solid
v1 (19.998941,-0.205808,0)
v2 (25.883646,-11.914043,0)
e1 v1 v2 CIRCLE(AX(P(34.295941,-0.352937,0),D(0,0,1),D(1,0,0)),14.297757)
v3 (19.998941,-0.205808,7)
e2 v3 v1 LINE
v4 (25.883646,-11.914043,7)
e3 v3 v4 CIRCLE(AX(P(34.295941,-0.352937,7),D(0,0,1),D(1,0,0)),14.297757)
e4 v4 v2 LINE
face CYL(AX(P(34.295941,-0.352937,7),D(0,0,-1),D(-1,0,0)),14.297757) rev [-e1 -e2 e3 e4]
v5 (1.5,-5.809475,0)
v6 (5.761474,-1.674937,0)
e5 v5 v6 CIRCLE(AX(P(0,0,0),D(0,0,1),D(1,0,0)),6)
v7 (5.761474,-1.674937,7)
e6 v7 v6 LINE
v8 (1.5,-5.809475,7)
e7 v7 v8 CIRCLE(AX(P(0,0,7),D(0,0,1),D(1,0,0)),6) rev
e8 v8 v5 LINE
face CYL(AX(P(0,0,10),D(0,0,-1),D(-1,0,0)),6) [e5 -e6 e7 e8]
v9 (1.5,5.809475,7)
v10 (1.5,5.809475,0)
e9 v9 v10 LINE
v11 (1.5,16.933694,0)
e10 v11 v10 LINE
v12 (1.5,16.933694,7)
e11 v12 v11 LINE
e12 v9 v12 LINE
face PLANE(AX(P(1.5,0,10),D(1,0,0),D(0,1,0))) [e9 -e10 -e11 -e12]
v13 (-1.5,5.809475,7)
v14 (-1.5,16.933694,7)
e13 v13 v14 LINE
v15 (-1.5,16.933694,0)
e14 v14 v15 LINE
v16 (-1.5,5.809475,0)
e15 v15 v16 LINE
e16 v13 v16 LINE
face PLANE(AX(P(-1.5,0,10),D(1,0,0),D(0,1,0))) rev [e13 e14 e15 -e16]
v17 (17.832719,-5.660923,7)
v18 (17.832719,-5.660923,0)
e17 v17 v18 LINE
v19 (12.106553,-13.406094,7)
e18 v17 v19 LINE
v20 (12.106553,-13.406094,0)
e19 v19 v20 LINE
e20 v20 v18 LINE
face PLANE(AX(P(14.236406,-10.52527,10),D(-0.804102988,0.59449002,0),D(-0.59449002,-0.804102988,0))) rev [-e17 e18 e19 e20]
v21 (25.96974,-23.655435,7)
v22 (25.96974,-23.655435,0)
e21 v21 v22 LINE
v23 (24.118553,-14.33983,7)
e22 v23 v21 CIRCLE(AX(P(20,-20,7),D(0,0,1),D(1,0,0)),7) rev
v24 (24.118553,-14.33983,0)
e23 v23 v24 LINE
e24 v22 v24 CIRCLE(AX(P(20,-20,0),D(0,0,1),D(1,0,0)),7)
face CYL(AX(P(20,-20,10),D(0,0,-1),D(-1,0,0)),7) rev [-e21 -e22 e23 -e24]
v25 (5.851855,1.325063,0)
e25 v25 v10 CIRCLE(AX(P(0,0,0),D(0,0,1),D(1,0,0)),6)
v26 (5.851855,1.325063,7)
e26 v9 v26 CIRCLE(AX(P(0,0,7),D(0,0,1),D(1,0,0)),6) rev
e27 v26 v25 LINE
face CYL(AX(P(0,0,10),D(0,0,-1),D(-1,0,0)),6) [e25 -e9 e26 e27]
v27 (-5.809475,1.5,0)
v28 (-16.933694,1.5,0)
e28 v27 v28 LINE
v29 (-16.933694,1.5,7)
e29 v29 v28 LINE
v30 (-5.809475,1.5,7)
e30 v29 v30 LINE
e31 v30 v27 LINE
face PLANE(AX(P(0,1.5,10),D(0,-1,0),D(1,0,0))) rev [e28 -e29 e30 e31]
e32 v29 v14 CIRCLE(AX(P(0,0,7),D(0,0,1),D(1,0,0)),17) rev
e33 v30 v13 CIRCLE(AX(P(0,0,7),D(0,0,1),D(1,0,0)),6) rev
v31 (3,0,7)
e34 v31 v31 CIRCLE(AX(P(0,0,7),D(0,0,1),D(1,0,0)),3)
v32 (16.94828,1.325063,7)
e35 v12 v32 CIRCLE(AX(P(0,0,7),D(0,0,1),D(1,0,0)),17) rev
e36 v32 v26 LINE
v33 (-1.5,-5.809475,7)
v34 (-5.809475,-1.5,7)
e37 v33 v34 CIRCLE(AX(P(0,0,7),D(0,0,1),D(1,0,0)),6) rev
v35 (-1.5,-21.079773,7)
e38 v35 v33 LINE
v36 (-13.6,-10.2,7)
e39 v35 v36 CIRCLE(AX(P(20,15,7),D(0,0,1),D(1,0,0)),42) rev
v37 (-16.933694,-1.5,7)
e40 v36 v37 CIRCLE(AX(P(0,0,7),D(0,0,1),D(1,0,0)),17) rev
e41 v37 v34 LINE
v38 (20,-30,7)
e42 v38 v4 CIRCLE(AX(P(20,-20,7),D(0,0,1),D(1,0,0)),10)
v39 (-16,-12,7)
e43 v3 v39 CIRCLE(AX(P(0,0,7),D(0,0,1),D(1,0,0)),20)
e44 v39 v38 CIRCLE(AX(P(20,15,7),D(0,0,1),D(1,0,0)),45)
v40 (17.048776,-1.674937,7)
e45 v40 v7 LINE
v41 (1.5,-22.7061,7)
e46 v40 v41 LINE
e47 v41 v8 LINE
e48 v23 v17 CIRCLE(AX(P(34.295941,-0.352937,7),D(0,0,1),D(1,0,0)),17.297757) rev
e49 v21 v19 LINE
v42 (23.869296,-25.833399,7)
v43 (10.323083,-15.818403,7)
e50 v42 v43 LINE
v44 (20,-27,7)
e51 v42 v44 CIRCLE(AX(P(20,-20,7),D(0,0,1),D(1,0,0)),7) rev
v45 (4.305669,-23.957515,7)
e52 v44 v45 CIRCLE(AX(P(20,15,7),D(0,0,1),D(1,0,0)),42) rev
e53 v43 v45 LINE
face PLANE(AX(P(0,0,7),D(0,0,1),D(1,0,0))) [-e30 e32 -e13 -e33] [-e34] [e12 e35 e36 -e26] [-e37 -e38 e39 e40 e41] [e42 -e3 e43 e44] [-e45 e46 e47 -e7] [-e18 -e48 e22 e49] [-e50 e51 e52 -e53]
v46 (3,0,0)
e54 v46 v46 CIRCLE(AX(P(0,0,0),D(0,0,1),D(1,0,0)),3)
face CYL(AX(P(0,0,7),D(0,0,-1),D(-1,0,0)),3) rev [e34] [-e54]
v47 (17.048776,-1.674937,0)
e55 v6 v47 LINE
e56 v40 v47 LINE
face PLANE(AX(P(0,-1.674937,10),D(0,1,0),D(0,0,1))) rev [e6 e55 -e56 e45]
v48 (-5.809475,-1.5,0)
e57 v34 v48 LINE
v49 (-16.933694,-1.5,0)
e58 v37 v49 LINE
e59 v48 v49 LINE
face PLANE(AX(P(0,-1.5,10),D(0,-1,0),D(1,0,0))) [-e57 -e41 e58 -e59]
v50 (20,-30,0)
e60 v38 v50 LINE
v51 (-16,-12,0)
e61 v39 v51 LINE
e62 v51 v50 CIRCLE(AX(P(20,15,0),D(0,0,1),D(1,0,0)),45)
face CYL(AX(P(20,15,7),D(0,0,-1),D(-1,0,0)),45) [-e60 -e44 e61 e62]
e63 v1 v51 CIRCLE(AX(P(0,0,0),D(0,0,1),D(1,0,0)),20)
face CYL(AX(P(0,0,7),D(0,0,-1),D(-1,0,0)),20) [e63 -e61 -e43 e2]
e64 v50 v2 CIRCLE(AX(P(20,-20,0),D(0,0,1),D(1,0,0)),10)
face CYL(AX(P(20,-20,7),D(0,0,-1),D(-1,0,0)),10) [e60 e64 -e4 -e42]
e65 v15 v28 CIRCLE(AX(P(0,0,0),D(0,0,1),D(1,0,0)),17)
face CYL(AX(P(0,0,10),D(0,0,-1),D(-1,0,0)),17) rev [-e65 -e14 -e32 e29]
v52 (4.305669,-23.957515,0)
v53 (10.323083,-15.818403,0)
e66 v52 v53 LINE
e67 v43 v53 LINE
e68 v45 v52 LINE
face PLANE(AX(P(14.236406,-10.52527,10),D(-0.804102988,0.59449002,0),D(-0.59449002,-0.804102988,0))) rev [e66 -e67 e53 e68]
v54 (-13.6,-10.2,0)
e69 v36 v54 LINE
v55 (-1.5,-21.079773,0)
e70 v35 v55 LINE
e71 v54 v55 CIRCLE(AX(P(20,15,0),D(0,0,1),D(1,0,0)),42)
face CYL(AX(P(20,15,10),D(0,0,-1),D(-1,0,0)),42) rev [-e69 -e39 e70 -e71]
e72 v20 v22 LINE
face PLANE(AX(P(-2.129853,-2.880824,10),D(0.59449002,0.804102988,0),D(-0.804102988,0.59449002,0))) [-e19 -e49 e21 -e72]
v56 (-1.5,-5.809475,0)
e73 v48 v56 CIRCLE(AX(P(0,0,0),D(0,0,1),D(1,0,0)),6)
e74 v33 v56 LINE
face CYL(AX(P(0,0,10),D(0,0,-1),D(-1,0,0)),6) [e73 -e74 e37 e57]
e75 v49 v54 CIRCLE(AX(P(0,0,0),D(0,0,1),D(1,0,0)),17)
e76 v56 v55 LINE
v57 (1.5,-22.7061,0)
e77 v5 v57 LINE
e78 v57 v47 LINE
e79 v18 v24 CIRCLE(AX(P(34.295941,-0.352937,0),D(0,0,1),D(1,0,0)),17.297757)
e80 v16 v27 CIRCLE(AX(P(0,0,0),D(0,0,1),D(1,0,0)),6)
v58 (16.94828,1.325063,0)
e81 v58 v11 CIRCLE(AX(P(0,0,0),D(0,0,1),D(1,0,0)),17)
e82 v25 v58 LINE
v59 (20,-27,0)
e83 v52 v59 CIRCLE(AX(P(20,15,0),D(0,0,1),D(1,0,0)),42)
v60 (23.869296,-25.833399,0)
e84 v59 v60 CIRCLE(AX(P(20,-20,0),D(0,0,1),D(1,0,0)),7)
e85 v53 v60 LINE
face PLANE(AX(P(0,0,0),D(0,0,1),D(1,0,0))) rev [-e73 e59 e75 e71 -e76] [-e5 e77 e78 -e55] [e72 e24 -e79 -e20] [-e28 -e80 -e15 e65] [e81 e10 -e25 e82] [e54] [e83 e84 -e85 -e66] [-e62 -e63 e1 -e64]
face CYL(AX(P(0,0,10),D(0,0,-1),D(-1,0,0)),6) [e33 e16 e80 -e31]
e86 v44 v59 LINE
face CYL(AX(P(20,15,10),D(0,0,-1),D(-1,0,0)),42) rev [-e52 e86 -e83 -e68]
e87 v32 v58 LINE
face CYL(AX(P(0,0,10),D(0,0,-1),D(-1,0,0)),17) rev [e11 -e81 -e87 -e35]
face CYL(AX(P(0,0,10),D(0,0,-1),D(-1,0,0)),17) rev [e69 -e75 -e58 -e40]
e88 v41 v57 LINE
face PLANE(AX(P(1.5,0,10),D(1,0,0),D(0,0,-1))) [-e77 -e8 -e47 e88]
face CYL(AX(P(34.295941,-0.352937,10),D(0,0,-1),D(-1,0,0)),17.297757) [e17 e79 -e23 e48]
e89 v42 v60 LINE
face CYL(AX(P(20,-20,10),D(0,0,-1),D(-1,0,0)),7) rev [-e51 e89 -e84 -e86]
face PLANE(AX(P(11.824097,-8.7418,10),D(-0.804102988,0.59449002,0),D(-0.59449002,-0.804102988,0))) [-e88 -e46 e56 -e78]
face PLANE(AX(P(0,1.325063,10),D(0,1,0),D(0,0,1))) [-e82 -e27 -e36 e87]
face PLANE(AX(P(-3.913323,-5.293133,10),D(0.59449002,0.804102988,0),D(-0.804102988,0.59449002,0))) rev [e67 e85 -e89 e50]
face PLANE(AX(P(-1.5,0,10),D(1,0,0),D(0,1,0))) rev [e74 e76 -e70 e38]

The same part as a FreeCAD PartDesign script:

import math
import FreeCAD as App
import Part
import Sketcher
Q = App.Units.Quantity

doc = App.newDocument("Part")
body = doc.addObject("PartDesign::Body", "Body")

# Sketch on XY plane
sketch1 = body.newObject("Sketcher::SketchObject", "Sketch")
sketch1.AttachmentSupport = (doc.getObject("XY_Plane"), [""])
sketch1.MapMode = "FlatFace"
sketch1.addGeometry([
    Part.ArcOfCircle(Part.Circle(App.Vector(0, 0, 0), App.Vector(0, 0, 1), 20), math.radians(-0.589606), math.radians(216.869898)),  # 0
    Part.ArcOfCircle(Part.Circle(App.Vector(20, 15, 0), App.Vector(0, 0, 1), 45), math.radians(-143.130102), math.radians(-90)),  # 1
    Part.ArcOfCircle(Part.Circle(App.Vector(20, -20, 0), App.Vector(0, 0, 1), 10), math.radians(-90), math.radians(53.958956)),  # 2
    Part.ArcOfCircle(Part.Circle(App.Vector(34.295941, -0.352937, 0), App.Vector(0, 0, 1), 14.297757), math.radians(179.410394), math.radians(233.958956)),  # 3
    Part.Circle(App.Vector(0, 0, 0), App.Vector(0, 0, 1), 3),  # 4
], False)
sketch1.addConstraint([
    Sketcher.Constraint("Tangent", 0, 2, 1, 1),
    Sketcher.Constraint("Tangent", 1, 2, 2, 1),
    Sketcher.Constraint("Tangent", 2, 2, 3, 2),
    Sketcher.Constraint("Tangent", 3, 1, 0, 1),
    Sketcher.Constraint("Coincident", 0, 3, -1, 1),
    Sketcher.Constraint("Coincident", 4, 3, -1, 1),
    Sketcher.Constraint("Vertical", 1, 3, 2, 3),
    Sketcher.Constraint("Diameter", 4, Q("6 mm")),
    Sketcher.Constraint("Radius", 0, Q("20 mm")),
    Sketcher.Constraint("Radius", 1, Q("45 mm")),
    Sketcher.Constraint("Radius", 2, Q("10 mm")),
    Sketcher.Constraint("DistanceX", -1, 1, 1, 3, Q("20 mm")),
    Sketcher.Constraint("Radius", 3, Q("14.297757 mm")),
])
pad1 = body.newObject("PartDesign::Pad", "Pad")
pad1.Profile = sketch1
pad1.Length = 7

# Sketch on XY plane
sketch2 = body.newObject("Sketcher::SketchObject", "Sketch001")
sketch2.AttachmentSupport = (doc.getObject("XY_Plane"), [""])
sketch2.MapMode = "FlatFace"
sketch2.addGeometry([
    Part.LineSegment(App.Vector(-1.5, -21.079773, 0), App.Vector(-1.5, -5.809475, 0)),  # 0
    Part.ArcOfCircle(Part.Circle(App.Vector(0, 0, 0), App.Vector(0, 0, 1), 6), math.radians(-165.522488), math.radians(-104.477512)),  # 1
    Part.LineSegment(App.Vector(-5.809475, -1.5, 0), App.Vector(-16.933694, -1.5, 0)),  # 2
    Part.ArcOfCircle(Part.Circle(App.Vector(0, 0, 0), App.Vector(0, 0, 1), 17), math.radians(-174.937907), math.radians(-143.130102)),  # 3
    Part.ArcOfCircle(Part.Circle(App.Vector(20, 15, 0), App.Vector(0, 0, 1), 42), math.radians(-143.130102), math.radians(-120.790788)),  # 4
    Part.ArcOfCircle(Part.Circle(App.Vector(0, 0, 0), App.Vector(0, 0, 1), 6), math.radians(104.477512), math.radians(165.522488)),  # 5
    Part.LineSegment(App.Vector(-1.5, 5.809475, 0), App.Vector(-1.5, 16.933694, 0)),  # 6
    Part.ArcOfCircle(Part.Circle(App.Vector(0, 0, 0), App.Vector(0, 0, 1), 17), math.radians(95.062093), math.radians(174.937907)),  # 7
    Part.LineSegment(App.Vector(-16.933694, 1.5, 0), App.Vector(-5.809475, 1.5, 0)),  # 8
    Part.ArcOfCircle(Part.Circle(App.Vector(0, 0, 0), App.Vector(0, 0, 1), 6), math.radians(12.758604), math.radians(75.522488)),  # 9
    Part.LineSegment(App.Vector(5.851855, 1.325063, 0), App.Vector(16.94828, 1.325063, 0)),  # 10
    Part.ArcOfCircle(Part.Circle(App.Vector(0, 0, 0), App.Vector(0, 0, 1), 17), math.radians(4.470449), math.radians(84.937907)),  # 11
    Part.LineSegment(App.Vector(1.5, 16.933694, 0), App.Vector(1.5, 5.809475, 0)),  # 12
    Part.LineSegment(App.Vector(17.048776, -1.674937, 0), App.Vector(5.761474, -1.674937, 0)),  # 13
    Part.ArcOfCircle(Part.Circle(App.Vector(0, 0, 0), App.Vector(0, 0, 1), 6), math.radians(-75.522488), math.radians(-16.209845)),  # 14
    Part.LineSegment(App.Vector(1.5, -5.809475, 0), App.Vector(1.5, -22.7061, 0)),  # 15
    Part.LineSegment(App.Vector(1.5, -22.7061, 0), App.Vector(17.048776, -1.674937, 0)),  # 16
    Part.ArcOfCircle(Part.Circle(App.Vector(34.295941, -0.352937, 0), App.Vector(0, 0, 1), 17.297757), math.radians(-162.129914), math.radians(-126.041044)),  # 17
    Part.LineSegment(App.Vector(17.832719, -5.660923, 0), App.Vector(12.106553, -13.406094, 0)),  # 18
    Part.LineSegment(App.Vector(12.106553, -13.406094, 0), App.Vector(25.96974, -23.655435, 0)),  # 19
    Part.ArcOfCircle(Part.Circle(App.Vector(20, -20, 0), App.Vector(0, 0, 1), 7), math.radians(-31.480279), math.radians(53.958956)),  # 20
    Part.LineSegment(App.Vector(10.323083, -15.818403, 0), App.Vector(4.305669, -23.957515, 0)),  # 21
    Part.ArcOfCircle(Part.Circle(App.Vector(20, 15, 0), App.Vector(0, 0, 1), 42), math.radians(-111.942416), math.radians(-90)),  # 22
    Part.ArcOfCircle(Part.Circle(App.Vector(20, -20, 0), App.Vector(0, 0, 1), 7), math.radians(-90), math.radians(-56.443667)),  # 23
    Part.LineSegment(App.Vector(23.869296, -25.833399, 0), App.Vector(10.323083, -15.818403, 0)),  # 24
], False)
sketch2.addConstraint([
    Sketcher.Constraint("Coincident", 0, 2, 1, 2),
    Sketcher.Constraint("Coincident", 1, 1, 2, 1),
    Sketcher.Constraint("Coincident", 2, 2, 3, 1),
    Sketcher.Constraint("Tangent", 3, 2, 4, 1),
    Sketcher.Constraint("Coincident", 4, 2, 0, 1),
    Sketcher.Constraint("Coincident", 5, 1, 6, 1),
    Sketcher.Constraint("Coincident", 6, 2, 7, 1),
    Sketcher.Constraint("Coincident", 7, 2, 8, 1),
    Sketcher.Constraint("Coincident", 8, 2, 5, 2),
    Sketcher.Constraint("Coincident", 9, 1, 10, 1),
    Sketcher.Constraint("Coincident", 10, 2, 11, 1),
    Sketcher.Constraint("Coincident", 11, 2, 12, 1),
    Sketcher.Constraint("Coincident", 12, 2, 9, 2),
    Sketcher.Constraint("Coincident", 13, 2, 14, 2),
    Sketcher.Constraint("Coincident", 14, 1, 15, 1),
    Sketcher.Constraint("Coincident", 15, 2, 16, 1),
    Sketcher.Constraint("Coincident", 16, 2, 13, 1),
    Sketcher.Constraint("Coincident", 17, 1, 18, 1),
    Sketcher.Constraint("Coincident", 18, 2, 19, 1),
    Sketcher.Constraint("Coincident", 19, 2, 20, 1),
    Sketcher.Constraint("Tangent", 20, 2, 17, 2),
    Sketcher.Constraint("Coincident", 21, 2, 22, 1),
    Sketcher.Constraint("Tangent", 22, 2, 23, 1),
    Sketcher.Constraint("Coincident", 23, 2, 24, 1),
    Sketcher.Constraint("Coincident", 24, 2, 21, 1),
    Sketcher.Constraint("Vertical", 0),
    Sketcher.Constraint("Horizontal", 2),
    Sketcher.Constraint("Vertical", 6),
    Sketcher.Constraint("Horizontal", 8),
    Sketcher.Constraint("Horizontal", 10),
    Sketcher.Constraint("Vertical", 12),
    Sketcher.Constraint("Horizontal", 13),
    Sketcher.Constraint("Vertical", 15),
    Sketcher.Constraint("Coincident", 1, 3, -1, 1),
    Sketcher.Constraint("Coincident", 3, 3, -1, 1),
    Sketcher.Constraint("Coincident", 5, 3, -1, 1),
    Sketcher.Constraint("Coincident", 7, 3, -1, 1),
    Sketcher.Constraint("Coincident", 9, 3, -1, 1),
    Sketcher.Constraint("Coincident", 11, 3, -1, 1),
    Sketcher.Constraint("Coincident", 14, 3, -1, 1),
    Sketcher.Constraint("Coincident", 22, 3, 4, 3),
    Sketcher.Constraint("Coincident", 23, 3, 20, 3),
    Sketcher.Constraint("Equal", 1, 5),
    Sketcher.Constraint("Equal", 3, 7),
    Sketcher.Constraint("Equal", 5, 9),
    Sketcher.Constraint("Equal", 7, 11),
    Sketcher.Constraint("Equal", 9, 14),
    Sketcher.Constraint("Equal", 4, 22),
    Sketcher.Constraint("Equal", 20, 23),
    Sketcher.Constraint("Parallel", 16, 18),
    Sketcher.Constraint("Perpendicular", 18, 19),
    Sketcher.Constraint("Perpendicular", 19, 21),
    Sketcher.Constraint("Perpendicular", 21, 24),
    Sketcher.Constraint("Horizontal", 6, 2, 11, 2),
    Sketcher.Constraint("Horizontal", 0, 2, 14, 1),
    Sketcher.Constraint("Vertical", 4, 3, 20, 3),
    Sketcher.Constraint("Vertical", 4, 2, 5, 1),
    Sketcher.Constraint("Vertical", 2, 2, 7, 2),
    Sketcher.Constraint("Equal", 8, 6),
    Sketcher.Constraint("Radius", 1, Q("6 mm")),
    Sketcher.Constraint("Radius", 3, Q("17 mm")),
    Sketcher.Constraint("Radius", 4, Q("42 mm")),
    Sketcher.Constraint("Radius", 20, Q("7 mm")),
    Sketcher.Constraint("DistanceX", -1, 1, 4, 3, Q("20 mm")),
    Sketcher.Constraint("DistanceY", 2, 2, 7, 2, Q("3 mm")),
    Sketcher.Constraint("DistanceY", 13, 2, 9, 1, Q("3 mm")),
    Sketcher.Constraint("DistanceX", 13, 2, 13, 1, Q("11.287301 mm")),
    Sketcher.Constraint("Radius", 17, Q("17.297757 mm")),
    Sketcher.Constraint("DistanceX", 18, 2, 20, 2, Q("12.012 mm")),
    Sketcher.Constraint("DistanceY", 15, 2, -1, 1, Q("22.7061 mm")),
    Sketcher.Constraint("DistanceY", 23, 2, -1, 1, Q("25.833399 mm")),
    Sketcher.Constraint("DistanceY", 19, 2, 16, 2, Q("21.980499 mm")),
    Sketcher.Constraint("Distance", 19, Q("17.240561 mm")),
    Sketcher.Constraint("DistanceX", 10, 1, 10, 2, Q("11.096425 mm")),
    Sketcher.Constraint("DistanceX", -1, 1, 21, 2, Q("4.305669 mm")),
])
pocket1 = body.newObject("PartDesign::Pocket", "Pocket")
pocket1.Profile = sketch2
pocket1.Length = 10
pocket1.Reversed = True

doc.recompute()
